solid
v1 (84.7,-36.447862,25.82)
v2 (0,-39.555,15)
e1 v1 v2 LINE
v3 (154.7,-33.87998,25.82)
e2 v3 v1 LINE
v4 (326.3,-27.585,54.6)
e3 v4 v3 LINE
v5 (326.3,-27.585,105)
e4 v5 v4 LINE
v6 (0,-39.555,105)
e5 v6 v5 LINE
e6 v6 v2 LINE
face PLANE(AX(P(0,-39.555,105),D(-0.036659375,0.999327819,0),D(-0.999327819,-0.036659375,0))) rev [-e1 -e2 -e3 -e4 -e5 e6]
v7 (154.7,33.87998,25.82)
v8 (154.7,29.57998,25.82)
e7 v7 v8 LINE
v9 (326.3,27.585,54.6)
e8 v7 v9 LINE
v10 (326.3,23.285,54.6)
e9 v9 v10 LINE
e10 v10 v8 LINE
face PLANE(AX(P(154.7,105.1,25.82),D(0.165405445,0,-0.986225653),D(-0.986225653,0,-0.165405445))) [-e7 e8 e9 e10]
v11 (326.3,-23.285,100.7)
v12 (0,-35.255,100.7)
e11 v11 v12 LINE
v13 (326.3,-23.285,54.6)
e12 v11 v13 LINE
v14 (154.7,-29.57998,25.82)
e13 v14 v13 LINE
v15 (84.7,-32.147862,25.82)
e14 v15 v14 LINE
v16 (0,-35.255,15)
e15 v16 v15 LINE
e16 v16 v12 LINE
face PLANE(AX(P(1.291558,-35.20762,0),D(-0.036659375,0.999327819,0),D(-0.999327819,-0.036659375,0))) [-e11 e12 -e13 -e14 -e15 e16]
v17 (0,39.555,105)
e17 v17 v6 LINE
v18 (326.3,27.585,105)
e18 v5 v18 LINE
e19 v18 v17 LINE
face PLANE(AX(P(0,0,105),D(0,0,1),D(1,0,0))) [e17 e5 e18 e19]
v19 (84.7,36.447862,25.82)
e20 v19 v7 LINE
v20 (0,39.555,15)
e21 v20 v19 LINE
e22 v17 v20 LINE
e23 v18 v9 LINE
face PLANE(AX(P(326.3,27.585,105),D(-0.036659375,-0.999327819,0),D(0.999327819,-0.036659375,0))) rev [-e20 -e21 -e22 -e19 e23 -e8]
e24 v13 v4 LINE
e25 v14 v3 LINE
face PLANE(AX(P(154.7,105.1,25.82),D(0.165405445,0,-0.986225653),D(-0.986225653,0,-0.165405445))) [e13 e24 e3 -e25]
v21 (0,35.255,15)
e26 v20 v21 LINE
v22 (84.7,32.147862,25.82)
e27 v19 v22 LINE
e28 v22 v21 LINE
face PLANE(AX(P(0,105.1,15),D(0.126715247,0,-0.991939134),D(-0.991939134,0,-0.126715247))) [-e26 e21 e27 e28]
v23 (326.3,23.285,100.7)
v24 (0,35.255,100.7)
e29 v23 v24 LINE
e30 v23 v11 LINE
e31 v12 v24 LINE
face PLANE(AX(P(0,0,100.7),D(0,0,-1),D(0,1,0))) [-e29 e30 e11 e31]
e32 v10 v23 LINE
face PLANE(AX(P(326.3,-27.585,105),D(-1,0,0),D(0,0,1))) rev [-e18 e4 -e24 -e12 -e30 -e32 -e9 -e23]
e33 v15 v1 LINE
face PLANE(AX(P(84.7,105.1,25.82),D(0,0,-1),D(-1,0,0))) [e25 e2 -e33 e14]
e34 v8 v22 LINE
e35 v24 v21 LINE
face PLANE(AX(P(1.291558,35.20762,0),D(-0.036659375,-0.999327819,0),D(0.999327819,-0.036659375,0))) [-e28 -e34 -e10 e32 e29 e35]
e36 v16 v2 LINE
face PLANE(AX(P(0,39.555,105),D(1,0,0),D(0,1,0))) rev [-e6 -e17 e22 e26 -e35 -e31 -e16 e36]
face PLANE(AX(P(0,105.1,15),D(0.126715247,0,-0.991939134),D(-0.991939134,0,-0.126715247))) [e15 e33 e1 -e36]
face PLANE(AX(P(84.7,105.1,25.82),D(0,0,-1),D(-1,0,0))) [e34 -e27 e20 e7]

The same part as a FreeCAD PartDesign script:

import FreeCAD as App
import Part
import Sketcher

V = App.Vector

doc = App.newDocument("Part")
params = doc.addObject("Spreadsheet::Sheet", "Params")
for row, (alias, value) in enumerate([
    ("sketch1_height", "79.11 mm"),
    ("sketch1_height2", "55.17 mm"),
    ("pad1_length", "105 mm"),
    ("sketch2_width", "70 mm"),
    ("sketch3_width", "46.57 mm"),
    ("sketch4_width", "70.51 mm"),
], start=1):
    params.set(f"A{row}", alias)
    params.set(f"B{row}", "=" + value)
    params.setAlias(f"B{row}", alias)

body = doc.addObject("PartDesign::Body", "Body")

sketch1 = doc.addObject("Sketcher::SketchObject", "Sketch")
body.addObject(sketch1)
sketch1.AttachmentSupport = (doc.XY_Plane, [""])
sketch1.MapMode = "FlatFace"
sketch1.addGeometry([
    Part.LineSegment(V(0, 40, 0), V(0, -40, 0)),
    Part.LineSegment(V(0, -40, 0), V(326, -28, 0)),
    Part.LineSegment(V(326, -28, 0), V(326, 28, 0)),
    Part.LineSegment(V(326, 28, 0), V(0, 40, 0)),
], False)
sketch1.addConstraint([
    Sketcher.Constraint("Coincident", 0, 2, 1, 1),
    Sketcher.Constraint("Coincident", 1, 2, 2, 1),
    Sketcher.Constraint("Coincident", 2, 2, 3, 1),
    Sketcher.Constraint("Coincident", 3, 2, 0, 1),
    Sketcher.Constraint("Vertical", 0),
    Sketcher.Constraint("Vertical", 2),
    Sketcher.Constraint("Symmetric", 0, 2, 3, 2, -1, 1),
    Sketcher.Constraint("Equal", 1, 3),
    Sketcher.Constraint("DistanceY", 0, 2, 0, 1, 79.11),
    Sketcher.Constraint("DistanceY", 2, 1, 2, 2, 55.17),
    Sketcher.Constraint("DistanceX", -1, 1, 1, 2, 326.3),
])
sketch1.setExpression("Constraints[8]", "Params.sketch1_height")
sketch1.setExpression("Constraints[9]", "Params.sketch1_height2")
pad1 = doc.addObject("PartDesign::Pad", "Pad")
body.addObject(pad1)
pad1.Profile = sketch1
pad1.setExpression("Length", "Params.pad1_length")

sketch2 = doc.addObject("Sketcher::SketchObject", "Sketch001")
body.addObject(sketch2)
sketch2.AttachmentSupport = (doc.XZ_Plane, [""])
sketch2.MapMode = "FlatFace"
sketch2.addGeometry([
    Part.LineSegment(V(0, 15, 0), V(85, 26, 0)),
    Part.LineSegment(V(85, 26, 0), V(155, 26, 0)),
    Part.LineSegment(V(155, 26, 0), V(326, 55, 0)),
    Part.LineSegment(V(326, 55, 0), V(326, -36, 0)),
    Part.LineSegment(V(326, -36, 0), V(0, -41, 0)),
    Part.LineSegment(V(0, -41, 0), V(0, 15, 0)),
], False)
sketch2.addConstraint([
    Sketcher.Constraint("Coincident", 0, 2, 1, 1),
    Sketcher.Constraint("Coincident", 1, 2, 2, 1),
    Sketcher.Constraint("Coincident", 2, 2, 3, 1),
    Sketcher.Constraint("Coincident", 3, 2, 4, 1),
    Sketcher.Constraint("Coincident", 4, 2, 5, 1),
    Sketcher.Constraint("Coincident", 5, 2, 0, 1),
    Sketcher.Constraint("Horizontal", 1),
    Sketcher.Constraint("Vertical", 3),
    Sketcher.Constraint("Vertical", 5),
    Sketcher.Constraint("PointOnObject", 4, 2, -2),
    Sketcher.Constraint("DistanceX", 1, 1, 1, 2, 70.0),
    Sketcher.Constraint("DistanceY", -1, 1, 5, 2, 15.0),
    Sketcher.Constraint("DistanceX", -1, 1, 0, 2, 84.7),
    Sketcher.Constraint("DistanceX", -1, 1, 2, 2, 326.3),
    Sketcher.Constraint("DistanceY", -1, 1, 2, 2, 54.6),
    Sketcher.Constraint("DistanceY", -1, 1, 0, 2, 25.82),
    Sketcher.Constraint("DistanceY", 3, 2, 3, 1, 90.679012),
    Sketcher.Constraint("DistanceY", 5, 1, 5, 2, 56.11386),
])
sketch2.setExpression("Constraints[10]", "Params.sketch2_width")
pocket1 = doc.addObject("PartDesign::Pocket", "Pocket")
body.addObject(pocket1)
pocket1.Profile = sketch2
pocket1.Type = "ThroughAll"
pocket1.Midplane = True

sketch3 = doc.addObject("Sketcher::SketchObject", "Sketch002")
body.addObject(sketch3)
sketch3.AttachmentSupport = (doc.YZ_Plane, [""])
sketch3.MapMode = "FlatFace"
sketch3.AttachmentOffset = App.Placement(V(0, 0, 326.3), App.Rotation())
sketch3.addGeometry([
    Part.LineSegment(V(23, 101, 0), V(-23, 101, 0)),
    Part.LineSegment(V(-23, 101, 0), V(-23, 23, 0)),
    Part.LineSegment(V(-23, 23, 0), V(23, 23, 0)),
    Part.LineSegment(V(23, 23, 0), V(23, 101, 0)),
], False)
sketch3.addConstraint([
    Sketcher.Constraint("Coincident", 0, 2, 1, 1),
    Sketcher.Constraint("Coincident", 1, 2, 2, 1),
    Sketcher.Constraint("Coincident", 2, 2, 3, 1),
    Sketcher.Constraint("Coincident", 3, 2, 0, 1),
    Sketcher.Constraint("Horizontal", 0),
    Sketcher.Constraint("Vertical", 1),
    Sketcher.Constraint("Horizontal", 2),
    Sketcher.Constraint("Vertical", 3),
    Sketcher.Constraint("DistanceX", 0, 2, 0, 1, 46.57),
    Sketcher.Constraint("DistanceY", -1, 1, 0, 2, 100.7),
    Sketcher.Constraint("DistanceX", 0, 2, -1, 1, 23.285),
    Sketcher.Constraint("DistanceY", 1, 2, 1, 1, 78.145476),
])
sketch3.setExpression("Constraints[8]", "Params.sketch3_width")

sketch4 = doc.addObject("Sketcher::SketchObject", "Sketch003")
body.addObject(sketch4)
sketch4.AttachmentSupport = (doc.YZ_Plane, [""])
sketch4.MapMode = "FlatFace"
sketch4.addGeometry([
    Part.LineSegment(V(35, -11, 0), V(-35, -11, 0)),
    Part.LineSegment(V(-35, -11, 0), V(-35, 101, 0)),
    Part.LineSegment(V(-35, 101, 0), V(35, 101, 0)),
    Part.LineSegment(V(35, 101, 0), V(35, -11, 0)),
], False)
sketch4.addConstraint([
    Sketcher.Constraint("Coincident", 0, 2, 1, 1),
    Sketcher.Constraint("Coincident", 1, 2, 2, 1),
    Sketcher.Constraint("Coincident", 2, 2, 3, 1),
    Sketcher.Constraint("Coincident", 3, 2, 0, 1),
    Sketcher.Constraint("Horizontal", 0),
    Sketcher.Constraint("Vertical", 1),
    Sketcher.Constraint("Horizontal", 2),
    Sketcher.Constraint("Vertical", 3),
    Sketcher.Constraint("DistanceX", 0, 2, 0, 1, 70.51),
    Sketcher.Constraint("DistanceY", -1, 1, 1, 2, 100.7),
    Sketcher.Constraint("DistanceX", 0, 2, -1, 1, 35.255),
    Sketcher.Constraint("DistanceY", 1, 1, 1, 2, 111.656528),
])
sketch4.setExpression("Constraints[8]", "Params.sketch4_width")

subtractiveloft = doc.addObject("PartDesign::SubtractiveLoft", "SubtractiveLoft")
body.addObject(subtractiveloft)
subtractiveloft.Profile = sketch3
subtractiveloft.Sections = [sketch4]

doc.recompute()
